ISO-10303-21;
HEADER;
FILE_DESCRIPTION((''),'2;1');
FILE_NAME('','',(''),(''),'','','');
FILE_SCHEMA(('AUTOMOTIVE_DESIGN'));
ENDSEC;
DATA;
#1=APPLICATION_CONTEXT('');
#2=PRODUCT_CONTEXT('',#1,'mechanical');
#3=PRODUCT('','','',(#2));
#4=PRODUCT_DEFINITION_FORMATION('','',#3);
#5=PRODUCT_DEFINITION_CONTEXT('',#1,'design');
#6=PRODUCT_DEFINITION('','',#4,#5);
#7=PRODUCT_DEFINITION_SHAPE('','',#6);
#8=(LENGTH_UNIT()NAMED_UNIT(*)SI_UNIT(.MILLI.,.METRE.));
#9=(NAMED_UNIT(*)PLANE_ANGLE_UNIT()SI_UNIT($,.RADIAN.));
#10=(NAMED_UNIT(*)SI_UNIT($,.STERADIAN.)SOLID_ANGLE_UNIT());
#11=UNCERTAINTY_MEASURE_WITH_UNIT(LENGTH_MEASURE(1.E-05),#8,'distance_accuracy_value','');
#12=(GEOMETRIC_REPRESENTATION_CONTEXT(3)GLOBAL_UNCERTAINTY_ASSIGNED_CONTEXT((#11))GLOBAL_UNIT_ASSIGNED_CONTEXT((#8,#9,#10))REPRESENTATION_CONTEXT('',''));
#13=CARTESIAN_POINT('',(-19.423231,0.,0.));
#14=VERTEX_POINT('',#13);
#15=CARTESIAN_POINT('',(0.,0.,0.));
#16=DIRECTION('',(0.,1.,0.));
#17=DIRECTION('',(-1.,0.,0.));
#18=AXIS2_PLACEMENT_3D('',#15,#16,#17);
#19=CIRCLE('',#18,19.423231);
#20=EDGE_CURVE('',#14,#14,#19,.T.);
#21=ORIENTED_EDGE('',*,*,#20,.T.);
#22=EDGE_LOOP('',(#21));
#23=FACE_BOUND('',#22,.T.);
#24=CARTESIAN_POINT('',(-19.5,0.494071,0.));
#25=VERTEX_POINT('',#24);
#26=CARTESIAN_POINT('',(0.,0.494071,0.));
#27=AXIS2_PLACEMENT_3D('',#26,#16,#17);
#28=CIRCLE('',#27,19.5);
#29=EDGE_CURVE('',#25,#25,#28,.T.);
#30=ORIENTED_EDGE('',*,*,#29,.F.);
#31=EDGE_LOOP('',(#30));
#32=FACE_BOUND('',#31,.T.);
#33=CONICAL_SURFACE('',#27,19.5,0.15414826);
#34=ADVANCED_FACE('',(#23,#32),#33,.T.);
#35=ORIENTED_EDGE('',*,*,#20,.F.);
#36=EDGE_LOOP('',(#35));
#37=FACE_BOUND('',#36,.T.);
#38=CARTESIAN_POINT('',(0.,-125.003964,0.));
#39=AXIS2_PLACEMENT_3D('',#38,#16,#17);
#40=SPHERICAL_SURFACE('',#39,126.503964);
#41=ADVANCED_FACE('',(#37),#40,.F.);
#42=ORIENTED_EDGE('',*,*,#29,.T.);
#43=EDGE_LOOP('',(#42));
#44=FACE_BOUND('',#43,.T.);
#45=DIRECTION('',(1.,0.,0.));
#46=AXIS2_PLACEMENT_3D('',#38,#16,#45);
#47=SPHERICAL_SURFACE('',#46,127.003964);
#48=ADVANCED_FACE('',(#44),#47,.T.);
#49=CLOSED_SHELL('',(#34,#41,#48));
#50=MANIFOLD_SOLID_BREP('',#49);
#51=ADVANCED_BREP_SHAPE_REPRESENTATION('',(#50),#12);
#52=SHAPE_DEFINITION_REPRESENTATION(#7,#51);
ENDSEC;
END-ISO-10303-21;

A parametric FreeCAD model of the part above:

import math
import FreeCAD as App
import Part
import Sketcher

V = App.Vector
Q = App.Units.Quantity

doc = App.newDocument("Part")
params = doc.addObject("Spreadsheet::Sheet", "Params")
for row, (alias, value) in enumerate([
    ("sketch1_height", "0.5 mm"),
    ("revolution_angle", "360 deg"),
], start=1):
    params.set(f"A{row}", alias)
    params.set(f"B{row}", "=" + value)
    params.setAlias(f"B{row}", alias)

body = doc.addObject("PartDesign::Body", "Body")

# Sketch on XY plane
sketch1 = body.newObject("Sketcher::SketchObject", "Sketch")
sketch1.AttachmentSupport = (doc.getObject("XY_Plane"), [""])
sketch1.MapMode = "FlatFace"
sketch1.addGeometry(Part.LineSegment(V(-19.5, 0.49, 0), V(-19.42, 0, 0)), False)
sketch1.addGeometry(Part.ArcOfCircle(Part.Circle(V(0, -125, 0), V(0, 0, 1), 126.5), math.radians(90), math.radians(98.83)), False)
sketch1.addGeometry(Part.LineSegment(V(0, 1.5, 0), V(0, 2, 0)), False)
sketch1.addGeometry(Part.ArcOfCircle(Part.Circle(V(0, -125, 0), V(0, 0, 1), 127), math.radians(90), math.radians(98.83)), False)
sketch1.addConstraint(Sketcher.Constraint("Coincident", 0, 2, 1, 2))
sketch1.addConstraint(Sketcher.Constraint("Coincident", 1, 1, 2, 1))
sketch1.addConstraint(Sketcher.Constraint("Coincident", 2, 2, 3, 1))
sketch1.addConstraint(Sketcher.Constraint("Coincident", 3, 2, 0, 1))
sketch1.addConstraint(Sketcher.Constraint("Vertical", 2))
sketch1.addConstraint(Sketcher.Constraint("Coincident", 3, 3, 1, 3))
sketch1.addConstraint(Sketcher.Constraint("PointOnObject", 1, 3, -2))
sketch1.addConstraint(Sketcher.Constraint("PointOnObject", 0, 2, -1))
sketch1.addConstraint(Sketcher.Constraint("PointOnObject", 1, 1, -2))
sketch1.addConstraint(Sketcher.Constraint("DistanceY", 2, 1, 2, 2, Q("0.5 mm")))
sketch1.addConstraint(Sketcher.Constraint("DistanceY", -1, 1, 2, 2, Q("2 mm")))
sketch1.addConstraint(Sketcher.Constraint("DistanceX", 3, 2, -1, 1, Q("19.5 mm")))
sketch1.addConstraint(Sketcher.Constraint("Radius", 1, Q("126.503964 mm")))
sketch1.setExpression("Constraints[9]", "Params.sketch1_height")
revolution = body.newObject("PartDesign::Revolution", "Revolution")
revolution.Profile = sketch1
revolution.ReferenceAxis = (sketch1, ["V_Axis"])
revolution.setExpression("Angle", "Params.revolution_angle")

doc.recompute()
